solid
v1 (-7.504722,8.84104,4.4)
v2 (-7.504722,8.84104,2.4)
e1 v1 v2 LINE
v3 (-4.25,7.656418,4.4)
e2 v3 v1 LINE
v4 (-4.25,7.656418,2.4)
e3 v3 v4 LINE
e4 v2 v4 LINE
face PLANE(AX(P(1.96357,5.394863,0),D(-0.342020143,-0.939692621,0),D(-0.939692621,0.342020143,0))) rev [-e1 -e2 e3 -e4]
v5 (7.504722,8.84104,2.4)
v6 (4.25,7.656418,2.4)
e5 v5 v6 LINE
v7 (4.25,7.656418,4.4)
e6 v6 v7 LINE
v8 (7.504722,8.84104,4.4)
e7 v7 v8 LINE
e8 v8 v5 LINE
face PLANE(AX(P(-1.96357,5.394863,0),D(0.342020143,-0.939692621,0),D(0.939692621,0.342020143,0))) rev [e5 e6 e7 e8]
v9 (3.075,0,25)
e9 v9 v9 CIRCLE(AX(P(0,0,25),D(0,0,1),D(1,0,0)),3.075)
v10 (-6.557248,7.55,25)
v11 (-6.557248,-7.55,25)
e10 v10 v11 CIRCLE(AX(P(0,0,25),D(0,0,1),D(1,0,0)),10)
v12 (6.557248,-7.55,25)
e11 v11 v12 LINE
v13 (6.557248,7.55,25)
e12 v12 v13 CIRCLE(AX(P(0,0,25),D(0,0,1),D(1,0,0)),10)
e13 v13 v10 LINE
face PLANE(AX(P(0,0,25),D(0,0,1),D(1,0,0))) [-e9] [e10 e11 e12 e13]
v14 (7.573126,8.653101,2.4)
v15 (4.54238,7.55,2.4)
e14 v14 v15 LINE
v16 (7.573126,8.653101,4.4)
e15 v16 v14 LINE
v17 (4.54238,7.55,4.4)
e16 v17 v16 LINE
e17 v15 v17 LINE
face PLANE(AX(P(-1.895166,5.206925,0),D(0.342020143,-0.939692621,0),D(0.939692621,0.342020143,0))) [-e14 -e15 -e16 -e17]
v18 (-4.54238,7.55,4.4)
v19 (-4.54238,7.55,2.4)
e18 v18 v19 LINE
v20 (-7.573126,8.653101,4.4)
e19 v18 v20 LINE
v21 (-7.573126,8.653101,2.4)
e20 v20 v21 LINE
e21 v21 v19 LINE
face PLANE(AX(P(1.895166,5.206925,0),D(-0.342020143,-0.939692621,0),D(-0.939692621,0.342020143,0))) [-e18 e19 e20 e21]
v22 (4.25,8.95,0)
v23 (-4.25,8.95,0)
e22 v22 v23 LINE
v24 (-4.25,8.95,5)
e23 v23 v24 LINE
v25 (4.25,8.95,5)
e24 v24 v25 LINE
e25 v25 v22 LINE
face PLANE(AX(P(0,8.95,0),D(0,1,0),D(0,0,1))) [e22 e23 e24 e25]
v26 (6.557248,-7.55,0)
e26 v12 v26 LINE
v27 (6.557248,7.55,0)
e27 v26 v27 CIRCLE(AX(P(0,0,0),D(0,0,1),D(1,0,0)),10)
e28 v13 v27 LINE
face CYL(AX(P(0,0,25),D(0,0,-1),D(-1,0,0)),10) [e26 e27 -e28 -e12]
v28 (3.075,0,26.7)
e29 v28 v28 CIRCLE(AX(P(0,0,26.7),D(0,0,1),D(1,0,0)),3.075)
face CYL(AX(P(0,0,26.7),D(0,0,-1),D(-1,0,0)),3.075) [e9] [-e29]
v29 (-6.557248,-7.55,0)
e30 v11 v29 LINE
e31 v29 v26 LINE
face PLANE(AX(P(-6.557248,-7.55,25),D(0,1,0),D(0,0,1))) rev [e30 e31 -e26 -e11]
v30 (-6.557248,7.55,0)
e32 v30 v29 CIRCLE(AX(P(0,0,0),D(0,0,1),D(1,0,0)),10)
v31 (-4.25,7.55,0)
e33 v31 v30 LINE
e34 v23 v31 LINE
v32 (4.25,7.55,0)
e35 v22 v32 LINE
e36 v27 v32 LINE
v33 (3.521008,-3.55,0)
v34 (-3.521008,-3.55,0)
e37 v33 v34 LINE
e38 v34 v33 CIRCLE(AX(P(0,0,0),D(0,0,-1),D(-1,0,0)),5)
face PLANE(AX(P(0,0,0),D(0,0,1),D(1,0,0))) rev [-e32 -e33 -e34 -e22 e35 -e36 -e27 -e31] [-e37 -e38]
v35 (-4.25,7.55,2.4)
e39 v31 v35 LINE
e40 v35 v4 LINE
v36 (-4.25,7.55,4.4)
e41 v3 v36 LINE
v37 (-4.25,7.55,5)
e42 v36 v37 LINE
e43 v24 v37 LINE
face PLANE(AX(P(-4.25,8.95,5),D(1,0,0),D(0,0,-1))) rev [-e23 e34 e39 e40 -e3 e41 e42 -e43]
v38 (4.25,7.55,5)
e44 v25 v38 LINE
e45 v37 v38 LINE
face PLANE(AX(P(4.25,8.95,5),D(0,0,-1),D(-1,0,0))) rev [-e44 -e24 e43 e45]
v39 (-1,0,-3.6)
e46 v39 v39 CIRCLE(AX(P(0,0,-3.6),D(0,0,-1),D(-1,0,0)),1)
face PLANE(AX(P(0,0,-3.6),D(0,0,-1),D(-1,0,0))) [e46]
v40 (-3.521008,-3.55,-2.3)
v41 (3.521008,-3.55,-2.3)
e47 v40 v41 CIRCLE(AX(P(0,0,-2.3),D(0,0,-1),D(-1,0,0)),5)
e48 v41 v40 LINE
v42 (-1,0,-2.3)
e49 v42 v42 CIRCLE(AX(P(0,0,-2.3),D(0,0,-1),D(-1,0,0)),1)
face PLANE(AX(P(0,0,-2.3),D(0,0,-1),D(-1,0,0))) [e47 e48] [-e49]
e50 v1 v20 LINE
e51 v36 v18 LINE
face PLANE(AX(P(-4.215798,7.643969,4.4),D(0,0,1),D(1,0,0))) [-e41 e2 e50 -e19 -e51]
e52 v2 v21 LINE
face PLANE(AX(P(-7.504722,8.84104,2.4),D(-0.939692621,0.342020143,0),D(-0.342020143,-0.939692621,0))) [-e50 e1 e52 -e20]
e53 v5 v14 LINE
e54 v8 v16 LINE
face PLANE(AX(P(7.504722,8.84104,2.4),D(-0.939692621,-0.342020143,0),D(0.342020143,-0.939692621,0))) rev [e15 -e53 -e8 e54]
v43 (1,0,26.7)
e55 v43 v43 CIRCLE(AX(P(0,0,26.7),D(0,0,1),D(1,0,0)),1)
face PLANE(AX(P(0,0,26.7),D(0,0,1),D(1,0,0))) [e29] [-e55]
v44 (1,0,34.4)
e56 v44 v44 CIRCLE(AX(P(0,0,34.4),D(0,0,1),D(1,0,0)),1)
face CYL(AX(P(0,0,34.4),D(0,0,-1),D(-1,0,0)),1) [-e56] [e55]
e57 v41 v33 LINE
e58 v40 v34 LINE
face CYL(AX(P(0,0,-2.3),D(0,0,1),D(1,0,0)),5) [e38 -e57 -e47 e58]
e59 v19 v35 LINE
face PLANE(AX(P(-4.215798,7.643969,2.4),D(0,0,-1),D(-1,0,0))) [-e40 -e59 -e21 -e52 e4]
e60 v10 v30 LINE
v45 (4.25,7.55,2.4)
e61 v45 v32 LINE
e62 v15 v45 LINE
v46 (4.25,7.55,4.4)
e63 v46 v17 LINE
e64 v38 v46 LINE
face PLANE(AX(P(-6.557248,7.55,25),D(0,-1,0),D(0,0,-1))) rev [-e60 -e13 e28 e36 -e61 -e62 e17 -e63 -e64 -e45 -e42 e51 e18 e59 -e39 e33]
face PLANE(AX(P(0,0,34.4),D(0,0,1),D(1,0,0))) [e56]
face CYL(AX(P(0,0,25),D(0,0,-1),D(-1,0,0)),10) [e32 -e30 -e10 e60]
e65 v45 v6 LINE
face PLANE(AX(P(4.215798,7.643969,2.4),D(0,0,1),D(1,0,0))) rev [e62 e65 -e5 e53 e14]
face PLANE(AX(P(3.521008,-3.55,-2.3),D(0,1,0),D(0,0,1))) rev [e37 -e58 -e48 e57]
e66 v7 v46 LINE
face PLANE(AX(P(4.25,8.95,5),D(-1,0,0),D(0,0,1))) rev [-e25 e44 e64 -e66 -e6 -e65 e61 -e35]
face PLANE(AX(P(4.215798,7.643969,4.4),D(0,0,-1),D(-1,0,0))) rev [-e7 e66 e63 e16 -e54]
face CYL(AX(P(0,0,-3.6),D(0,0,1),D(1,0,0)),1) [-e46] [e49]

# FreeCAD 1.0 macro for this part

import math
import FreeCAD as App
import Part
import Sketcher
Q = App.Units.Quantity


def add_polygon(sketch, points):
    """Adds a closed chain of lines whose ends are joined by coincident constraints."""
    first, n = sketch.GeometryCount, len(points)
    for a, b in zip(points, points[1:] + points[:1]):
        sketch.addGeometry(Part.LineSegment(App.Vector(*a, 0), App.Vector(*b, 0)), False)
    for i in range(n):
        sketch.addConstraint(Sketcher.Constraint("Coincident", first + i, 2, first + (i + 1) % n, 1))

doc = App.newDocument("Part")
body = doc.addObject("PartDesign::Body", "Body")

# Sketch on XY plane
sketch1 = doc.addObject("Sketcher::SketchObject", "Sketch")
body.addObject(sketch1)
sketch1.AttachmentSupport = (doc.XY_Plane, [""])
sketch1.MapMode = "FlatFace"
sketch1.addGeometry(Part.LineSegment(App.Vector(-7, -8, 0), App.Vector(7, -8, 0)), False)
sketch1.addGeometry(Part.ArcOfCircle(Part.Circle(App.Vector(0, 0, 0), App.Vector(0, 0, 1), 10), math.radians(-49), math.radians(49)), False)
sketch1.addGeometry(Part.LineSegment(App.Vector(7, 8, 0), App.Vector(-7, 8, 0)), False)
sketch1.addGeometry(Part.ArcOfCircle(Part.Circle(App.Vector(0, 0, 0), App.Vector(0, 0, 1), 10), math.radians(131), math.radians(229)), False)
sketch1.addConstraint(Sketcher.Constraint("Coincident", 0, 2, 1, 1))
sketch1.addConstraint(Sketcher.Constraint("Coincident", 1, 2, 2, 1))
sketch1.addConstraint(Sketcher.Constraint("Coincident", 2, 2, 3, 1))
sketch1.addConstraint(Sketcher.Constraint("Coincident", 3, 2, 0, 1))
sketch1.addConstraint(Sketcher.Constraint("Horizontal", 0))
sketch1.addConstraint(Sketcher.Constraint("Horizontal", 2))
sketch1.addConstraint(Sketcher.Constraint("Coincident", 1, 3, -1, 1))
sketch1.addConstraint(Sketcher.Constraint("Coincident", 3, 3, -1, 1))
sketch1.addConstraint(Sketcher.Constraint("Equal", 1, 3))
sketch1.addConstraint(Sketcher.Constraint("Vertical", 0, 2, 1, 2))
sketch1.addConstraint(Sketcher.Constraint("Radius", 1, Q("10 mm")))
sketch1.addConstraint(Sketcher.Constraint("DistanceY", 0, 2, 1, 2, Q("15.1 mm")))
pad1 = doc.addObject("PartDesign::Pad", "Pad")
body.addObject(pad1)
pad1.Profile = sketch1
pad1.Length = 25

# Sketch on XY plane
sketch2 = doc.addObject("Sketcher::SketchObject", "Sketch001")
body.addObject(sketch2)
sketch2.AttachmentSupport = (doc.XY_Plane, [""])
sketch2.MapMode = "FlatFace"
sketch2.AttachmentOffset = App.Placement(App.Vector(0, 0, 25), App.Rotation())
sketch2.addGeometry(Part.Circle(App.Vector(0, 0, 0), App.Vector(0, 0, 1), 1), False)
sketch2.addConstraint(Sketcher.Constraint("Coincident", 0, 3, -1, 1))
sketch2.addConstraint(Sketcher.Constraint("Diameter", 0, Q("2 mm")))
pad2 = doc.addObject("PartDesign::Pad", "Pad001")
body.addObject(pad2)
pad2.Profile = sketch2
pad2.Length = 9.4

# Sketch on XY plane
sketch3 = doc.addObject("Sketcher::SketchObject", "Sketch002")
body.addObject(sketch3)
sketch3.AttachmentSupport = (doc.XY_Plane, [""])
sketch3.MapMode = "FlatFace"
sketch3.AttachmentOffset = App.Placement(App.Vector(0, 0, 25), App.Rotation())
sketch3.addGeometry(Part.Circle(App.Vector(0, 0, 0), App.Vector(0, 0, 1), 3.1), False)
sketch3.addConstraint(Sketcher.Constraint("Coincident", 0, 3, -1, 1))
sketch3.addConstraint(Sketcher.Constraint("Diameter", 0, Q("6.15 mm")))
pad3 = doc.addObject("PartDesign::Pad", "Pad002")
body.addObject(pad3)
pad3.Profile = sketch3
pad3.Length = 1.7

# Sketch on XY plane
sketch4 = doc.addObject("Sketcher::SketchObject", "Sketch003")
body.addObject(sketch4)
sketch4.AttachmentSupport = (doc.XY_Plane, [""])
sketch4.MapMode = "FlatFace"
sketch4.addGeometry(Part.LineSegment(App.Vector(4, -4, 0), App.Vector(-4, -4, 0)), False)
sketch4.addGeometry(Part.ArcOfCircle(Part.Circle(App.Vector(0, 0, 0), App.Vector(0, 0, 1), 5), math.radians(-45), math.radians(225)), False)
sketch4.addConstraint(Sketcher.Constraint("Coincident", 0, 1, 1, 1))
sketch4.addConstraint(Sketcher.Constraint("Coincident", 1, 2, 0, 2))
sketch4.addConstraint(Sketcher.Constraint("Horizontal", 0))
sketch4.addConstraint(Sketcher.Constraint("Coincident", 1, 3, -1, 1))
sketch4.addConstraint(Sketcher.Constraint("Radius", 1, Q("5 mm")))
sketch4.addConstraint(Sketcher.Constraint("DistanceY", 0, 1, -1, 1, Q("3.55 mm")))
pad4 = doc.addObject("PartDesign::Pad", "Pad003")
body.addObject(pad4)
pad4.Profile = sketch4
pad4.Length = 2.3
pad4.Reversed = True

# Sketch on XY plane
sketch5 = doc.addObject("Sketcher::SketchObject", "Sketch004")
body.addObject(sketch5)
sketch5.AttachmentSupport = (doc.XY_Plane, [""])
sketch5.MapMode = "FlatFace"
sketch5.AttachmentOffset = App.Placement(App.Vector(0, 0, -3.6), App.Rotation())
sketch5.addGeometry(Part.Circle(App.Vector(0, 0, 0), App.Vector(0, 0, 1), 1), False)
sketch5.addConstraint(Sketcher.Constraint("Coincident", 0, 3, -1, 1))
sketch5.addConstraint(Sketcher.Constraint("Diameter", 0, Q("2 mm")))
pad5 = doc.addObject("PartDesign::Pad", "Pad004")
body.addObject(pad5)
pad5.Profile = sketch5
pad5.Length = 1.3

# Sketch on XZ plane
sketch6 = doc.addObject("Sketcher::SketchObject", "Sketch005")
body.addObject(sketch6)
sketch6.AttachmentSupport = (doc.XZ_Plane, [""])
sketch6.MapMode = "FlatFace"
sketch6.AttachmentOffset = App.Placement(App.Vector(0, 0, -7.55), App.Rotation())
add_polygon(sketch6, [(-4, 0), (-4, 5), (4, 5), (4, 0)])  # lines 0-3
sketch6.addConstraint(Sketcher.Constraint("Vertical", 0))
sketch6.addConstraint(Sketcher.Constraint("Horizontal", 1))
sketch6.addConstraint(Sketcher.Constraint("Vertical", 2))
sketch6.addConstraint(Sketcher.Constraint("Horizontal", 3))
sketch6.addConstraint(Sketcher.Constraint("Symmetric", 2, 2, 3, 2, -1, 1))
sketch6.addConstraint(Sketcher.Constraint("DistanceY", 0, 1, 0, 2, Q("5 mm")))
sketch6.addConstraint(Sketcher.Constraint("DistanceX", 1, 1, 1, 2, Q("8.5 mm")))
pad6 = doc.addObject("PartDesign::Pad", "Pad005")
body.addObject(pad6)
pad6.Profile = sketch6
pad6.Length = 1.4
pad6.Reversed = True

# Sketch on an angled plane
sketch7 = doc.addObject("Sketcher::SketchObject", "Sketch006")
body.addObject(sketch7)
sketch7.Placement = App.Placement(App.Vector(-1.929368, 5.300894, 0), App.Rotation(App.Vector(0, 0, -1), App.Vector(-0.939692621, -0.342020143, 0), App.Vector(-0.342020143, 0.939692621, 0), "ZXY"))
add_polygon(sketch7, [(-4.4, -6.6), (-4.4, -10.1), (-2.4, -10.1), (-2.4, -6.6)])  # lines 0-3
sketch7.addConstraint(Sketcher.Constraint("Vertical", 0))
sketch7.addConstraint(Sketcher.Constraint("Horizontal", 1))
sketch7.addConstraint(Sketcher.Constraint("Vertical", 2))
sketch7.addConstraint(Sketcher.Constraint("Horizontal", 3))
sketch7.addConstraint(Sketcher.Constraint("DistanceX", 1, 1, 1, 2, Q("2 mm")))
sketch7.addConstraint(Sketcher.Constraint("DistanceY", 0, 2, 0, 1, Q("3.5 mm")))
sketch7.addConstraint(Sketcher.Constraint("DistanceX", 0, 2, -1, 1, Q("4.4 mm")))
sketch7.addConstraint(Sketcher.Constraint("DistanceY", 0, 2, -1, 1, Q("10.075946 mm")))
pad7 = doc.addObject("PartDesign::Pad", "Pad006")
body.addObject(pad7)
pad7.Profile = sketch7
pad7.Length = 0.2
pad7.Midplane = True
doc.recompute()

mirrored = doc.addObject("PartDesign::Mirrored", "Mirrored")
body.addObject(mirrored)
mirrored.Originals = [pad7]
mirrored.MirrorPlane = (doc.YZ_Plane, [""])
body.Tip = mirrored

doc.recompute()
